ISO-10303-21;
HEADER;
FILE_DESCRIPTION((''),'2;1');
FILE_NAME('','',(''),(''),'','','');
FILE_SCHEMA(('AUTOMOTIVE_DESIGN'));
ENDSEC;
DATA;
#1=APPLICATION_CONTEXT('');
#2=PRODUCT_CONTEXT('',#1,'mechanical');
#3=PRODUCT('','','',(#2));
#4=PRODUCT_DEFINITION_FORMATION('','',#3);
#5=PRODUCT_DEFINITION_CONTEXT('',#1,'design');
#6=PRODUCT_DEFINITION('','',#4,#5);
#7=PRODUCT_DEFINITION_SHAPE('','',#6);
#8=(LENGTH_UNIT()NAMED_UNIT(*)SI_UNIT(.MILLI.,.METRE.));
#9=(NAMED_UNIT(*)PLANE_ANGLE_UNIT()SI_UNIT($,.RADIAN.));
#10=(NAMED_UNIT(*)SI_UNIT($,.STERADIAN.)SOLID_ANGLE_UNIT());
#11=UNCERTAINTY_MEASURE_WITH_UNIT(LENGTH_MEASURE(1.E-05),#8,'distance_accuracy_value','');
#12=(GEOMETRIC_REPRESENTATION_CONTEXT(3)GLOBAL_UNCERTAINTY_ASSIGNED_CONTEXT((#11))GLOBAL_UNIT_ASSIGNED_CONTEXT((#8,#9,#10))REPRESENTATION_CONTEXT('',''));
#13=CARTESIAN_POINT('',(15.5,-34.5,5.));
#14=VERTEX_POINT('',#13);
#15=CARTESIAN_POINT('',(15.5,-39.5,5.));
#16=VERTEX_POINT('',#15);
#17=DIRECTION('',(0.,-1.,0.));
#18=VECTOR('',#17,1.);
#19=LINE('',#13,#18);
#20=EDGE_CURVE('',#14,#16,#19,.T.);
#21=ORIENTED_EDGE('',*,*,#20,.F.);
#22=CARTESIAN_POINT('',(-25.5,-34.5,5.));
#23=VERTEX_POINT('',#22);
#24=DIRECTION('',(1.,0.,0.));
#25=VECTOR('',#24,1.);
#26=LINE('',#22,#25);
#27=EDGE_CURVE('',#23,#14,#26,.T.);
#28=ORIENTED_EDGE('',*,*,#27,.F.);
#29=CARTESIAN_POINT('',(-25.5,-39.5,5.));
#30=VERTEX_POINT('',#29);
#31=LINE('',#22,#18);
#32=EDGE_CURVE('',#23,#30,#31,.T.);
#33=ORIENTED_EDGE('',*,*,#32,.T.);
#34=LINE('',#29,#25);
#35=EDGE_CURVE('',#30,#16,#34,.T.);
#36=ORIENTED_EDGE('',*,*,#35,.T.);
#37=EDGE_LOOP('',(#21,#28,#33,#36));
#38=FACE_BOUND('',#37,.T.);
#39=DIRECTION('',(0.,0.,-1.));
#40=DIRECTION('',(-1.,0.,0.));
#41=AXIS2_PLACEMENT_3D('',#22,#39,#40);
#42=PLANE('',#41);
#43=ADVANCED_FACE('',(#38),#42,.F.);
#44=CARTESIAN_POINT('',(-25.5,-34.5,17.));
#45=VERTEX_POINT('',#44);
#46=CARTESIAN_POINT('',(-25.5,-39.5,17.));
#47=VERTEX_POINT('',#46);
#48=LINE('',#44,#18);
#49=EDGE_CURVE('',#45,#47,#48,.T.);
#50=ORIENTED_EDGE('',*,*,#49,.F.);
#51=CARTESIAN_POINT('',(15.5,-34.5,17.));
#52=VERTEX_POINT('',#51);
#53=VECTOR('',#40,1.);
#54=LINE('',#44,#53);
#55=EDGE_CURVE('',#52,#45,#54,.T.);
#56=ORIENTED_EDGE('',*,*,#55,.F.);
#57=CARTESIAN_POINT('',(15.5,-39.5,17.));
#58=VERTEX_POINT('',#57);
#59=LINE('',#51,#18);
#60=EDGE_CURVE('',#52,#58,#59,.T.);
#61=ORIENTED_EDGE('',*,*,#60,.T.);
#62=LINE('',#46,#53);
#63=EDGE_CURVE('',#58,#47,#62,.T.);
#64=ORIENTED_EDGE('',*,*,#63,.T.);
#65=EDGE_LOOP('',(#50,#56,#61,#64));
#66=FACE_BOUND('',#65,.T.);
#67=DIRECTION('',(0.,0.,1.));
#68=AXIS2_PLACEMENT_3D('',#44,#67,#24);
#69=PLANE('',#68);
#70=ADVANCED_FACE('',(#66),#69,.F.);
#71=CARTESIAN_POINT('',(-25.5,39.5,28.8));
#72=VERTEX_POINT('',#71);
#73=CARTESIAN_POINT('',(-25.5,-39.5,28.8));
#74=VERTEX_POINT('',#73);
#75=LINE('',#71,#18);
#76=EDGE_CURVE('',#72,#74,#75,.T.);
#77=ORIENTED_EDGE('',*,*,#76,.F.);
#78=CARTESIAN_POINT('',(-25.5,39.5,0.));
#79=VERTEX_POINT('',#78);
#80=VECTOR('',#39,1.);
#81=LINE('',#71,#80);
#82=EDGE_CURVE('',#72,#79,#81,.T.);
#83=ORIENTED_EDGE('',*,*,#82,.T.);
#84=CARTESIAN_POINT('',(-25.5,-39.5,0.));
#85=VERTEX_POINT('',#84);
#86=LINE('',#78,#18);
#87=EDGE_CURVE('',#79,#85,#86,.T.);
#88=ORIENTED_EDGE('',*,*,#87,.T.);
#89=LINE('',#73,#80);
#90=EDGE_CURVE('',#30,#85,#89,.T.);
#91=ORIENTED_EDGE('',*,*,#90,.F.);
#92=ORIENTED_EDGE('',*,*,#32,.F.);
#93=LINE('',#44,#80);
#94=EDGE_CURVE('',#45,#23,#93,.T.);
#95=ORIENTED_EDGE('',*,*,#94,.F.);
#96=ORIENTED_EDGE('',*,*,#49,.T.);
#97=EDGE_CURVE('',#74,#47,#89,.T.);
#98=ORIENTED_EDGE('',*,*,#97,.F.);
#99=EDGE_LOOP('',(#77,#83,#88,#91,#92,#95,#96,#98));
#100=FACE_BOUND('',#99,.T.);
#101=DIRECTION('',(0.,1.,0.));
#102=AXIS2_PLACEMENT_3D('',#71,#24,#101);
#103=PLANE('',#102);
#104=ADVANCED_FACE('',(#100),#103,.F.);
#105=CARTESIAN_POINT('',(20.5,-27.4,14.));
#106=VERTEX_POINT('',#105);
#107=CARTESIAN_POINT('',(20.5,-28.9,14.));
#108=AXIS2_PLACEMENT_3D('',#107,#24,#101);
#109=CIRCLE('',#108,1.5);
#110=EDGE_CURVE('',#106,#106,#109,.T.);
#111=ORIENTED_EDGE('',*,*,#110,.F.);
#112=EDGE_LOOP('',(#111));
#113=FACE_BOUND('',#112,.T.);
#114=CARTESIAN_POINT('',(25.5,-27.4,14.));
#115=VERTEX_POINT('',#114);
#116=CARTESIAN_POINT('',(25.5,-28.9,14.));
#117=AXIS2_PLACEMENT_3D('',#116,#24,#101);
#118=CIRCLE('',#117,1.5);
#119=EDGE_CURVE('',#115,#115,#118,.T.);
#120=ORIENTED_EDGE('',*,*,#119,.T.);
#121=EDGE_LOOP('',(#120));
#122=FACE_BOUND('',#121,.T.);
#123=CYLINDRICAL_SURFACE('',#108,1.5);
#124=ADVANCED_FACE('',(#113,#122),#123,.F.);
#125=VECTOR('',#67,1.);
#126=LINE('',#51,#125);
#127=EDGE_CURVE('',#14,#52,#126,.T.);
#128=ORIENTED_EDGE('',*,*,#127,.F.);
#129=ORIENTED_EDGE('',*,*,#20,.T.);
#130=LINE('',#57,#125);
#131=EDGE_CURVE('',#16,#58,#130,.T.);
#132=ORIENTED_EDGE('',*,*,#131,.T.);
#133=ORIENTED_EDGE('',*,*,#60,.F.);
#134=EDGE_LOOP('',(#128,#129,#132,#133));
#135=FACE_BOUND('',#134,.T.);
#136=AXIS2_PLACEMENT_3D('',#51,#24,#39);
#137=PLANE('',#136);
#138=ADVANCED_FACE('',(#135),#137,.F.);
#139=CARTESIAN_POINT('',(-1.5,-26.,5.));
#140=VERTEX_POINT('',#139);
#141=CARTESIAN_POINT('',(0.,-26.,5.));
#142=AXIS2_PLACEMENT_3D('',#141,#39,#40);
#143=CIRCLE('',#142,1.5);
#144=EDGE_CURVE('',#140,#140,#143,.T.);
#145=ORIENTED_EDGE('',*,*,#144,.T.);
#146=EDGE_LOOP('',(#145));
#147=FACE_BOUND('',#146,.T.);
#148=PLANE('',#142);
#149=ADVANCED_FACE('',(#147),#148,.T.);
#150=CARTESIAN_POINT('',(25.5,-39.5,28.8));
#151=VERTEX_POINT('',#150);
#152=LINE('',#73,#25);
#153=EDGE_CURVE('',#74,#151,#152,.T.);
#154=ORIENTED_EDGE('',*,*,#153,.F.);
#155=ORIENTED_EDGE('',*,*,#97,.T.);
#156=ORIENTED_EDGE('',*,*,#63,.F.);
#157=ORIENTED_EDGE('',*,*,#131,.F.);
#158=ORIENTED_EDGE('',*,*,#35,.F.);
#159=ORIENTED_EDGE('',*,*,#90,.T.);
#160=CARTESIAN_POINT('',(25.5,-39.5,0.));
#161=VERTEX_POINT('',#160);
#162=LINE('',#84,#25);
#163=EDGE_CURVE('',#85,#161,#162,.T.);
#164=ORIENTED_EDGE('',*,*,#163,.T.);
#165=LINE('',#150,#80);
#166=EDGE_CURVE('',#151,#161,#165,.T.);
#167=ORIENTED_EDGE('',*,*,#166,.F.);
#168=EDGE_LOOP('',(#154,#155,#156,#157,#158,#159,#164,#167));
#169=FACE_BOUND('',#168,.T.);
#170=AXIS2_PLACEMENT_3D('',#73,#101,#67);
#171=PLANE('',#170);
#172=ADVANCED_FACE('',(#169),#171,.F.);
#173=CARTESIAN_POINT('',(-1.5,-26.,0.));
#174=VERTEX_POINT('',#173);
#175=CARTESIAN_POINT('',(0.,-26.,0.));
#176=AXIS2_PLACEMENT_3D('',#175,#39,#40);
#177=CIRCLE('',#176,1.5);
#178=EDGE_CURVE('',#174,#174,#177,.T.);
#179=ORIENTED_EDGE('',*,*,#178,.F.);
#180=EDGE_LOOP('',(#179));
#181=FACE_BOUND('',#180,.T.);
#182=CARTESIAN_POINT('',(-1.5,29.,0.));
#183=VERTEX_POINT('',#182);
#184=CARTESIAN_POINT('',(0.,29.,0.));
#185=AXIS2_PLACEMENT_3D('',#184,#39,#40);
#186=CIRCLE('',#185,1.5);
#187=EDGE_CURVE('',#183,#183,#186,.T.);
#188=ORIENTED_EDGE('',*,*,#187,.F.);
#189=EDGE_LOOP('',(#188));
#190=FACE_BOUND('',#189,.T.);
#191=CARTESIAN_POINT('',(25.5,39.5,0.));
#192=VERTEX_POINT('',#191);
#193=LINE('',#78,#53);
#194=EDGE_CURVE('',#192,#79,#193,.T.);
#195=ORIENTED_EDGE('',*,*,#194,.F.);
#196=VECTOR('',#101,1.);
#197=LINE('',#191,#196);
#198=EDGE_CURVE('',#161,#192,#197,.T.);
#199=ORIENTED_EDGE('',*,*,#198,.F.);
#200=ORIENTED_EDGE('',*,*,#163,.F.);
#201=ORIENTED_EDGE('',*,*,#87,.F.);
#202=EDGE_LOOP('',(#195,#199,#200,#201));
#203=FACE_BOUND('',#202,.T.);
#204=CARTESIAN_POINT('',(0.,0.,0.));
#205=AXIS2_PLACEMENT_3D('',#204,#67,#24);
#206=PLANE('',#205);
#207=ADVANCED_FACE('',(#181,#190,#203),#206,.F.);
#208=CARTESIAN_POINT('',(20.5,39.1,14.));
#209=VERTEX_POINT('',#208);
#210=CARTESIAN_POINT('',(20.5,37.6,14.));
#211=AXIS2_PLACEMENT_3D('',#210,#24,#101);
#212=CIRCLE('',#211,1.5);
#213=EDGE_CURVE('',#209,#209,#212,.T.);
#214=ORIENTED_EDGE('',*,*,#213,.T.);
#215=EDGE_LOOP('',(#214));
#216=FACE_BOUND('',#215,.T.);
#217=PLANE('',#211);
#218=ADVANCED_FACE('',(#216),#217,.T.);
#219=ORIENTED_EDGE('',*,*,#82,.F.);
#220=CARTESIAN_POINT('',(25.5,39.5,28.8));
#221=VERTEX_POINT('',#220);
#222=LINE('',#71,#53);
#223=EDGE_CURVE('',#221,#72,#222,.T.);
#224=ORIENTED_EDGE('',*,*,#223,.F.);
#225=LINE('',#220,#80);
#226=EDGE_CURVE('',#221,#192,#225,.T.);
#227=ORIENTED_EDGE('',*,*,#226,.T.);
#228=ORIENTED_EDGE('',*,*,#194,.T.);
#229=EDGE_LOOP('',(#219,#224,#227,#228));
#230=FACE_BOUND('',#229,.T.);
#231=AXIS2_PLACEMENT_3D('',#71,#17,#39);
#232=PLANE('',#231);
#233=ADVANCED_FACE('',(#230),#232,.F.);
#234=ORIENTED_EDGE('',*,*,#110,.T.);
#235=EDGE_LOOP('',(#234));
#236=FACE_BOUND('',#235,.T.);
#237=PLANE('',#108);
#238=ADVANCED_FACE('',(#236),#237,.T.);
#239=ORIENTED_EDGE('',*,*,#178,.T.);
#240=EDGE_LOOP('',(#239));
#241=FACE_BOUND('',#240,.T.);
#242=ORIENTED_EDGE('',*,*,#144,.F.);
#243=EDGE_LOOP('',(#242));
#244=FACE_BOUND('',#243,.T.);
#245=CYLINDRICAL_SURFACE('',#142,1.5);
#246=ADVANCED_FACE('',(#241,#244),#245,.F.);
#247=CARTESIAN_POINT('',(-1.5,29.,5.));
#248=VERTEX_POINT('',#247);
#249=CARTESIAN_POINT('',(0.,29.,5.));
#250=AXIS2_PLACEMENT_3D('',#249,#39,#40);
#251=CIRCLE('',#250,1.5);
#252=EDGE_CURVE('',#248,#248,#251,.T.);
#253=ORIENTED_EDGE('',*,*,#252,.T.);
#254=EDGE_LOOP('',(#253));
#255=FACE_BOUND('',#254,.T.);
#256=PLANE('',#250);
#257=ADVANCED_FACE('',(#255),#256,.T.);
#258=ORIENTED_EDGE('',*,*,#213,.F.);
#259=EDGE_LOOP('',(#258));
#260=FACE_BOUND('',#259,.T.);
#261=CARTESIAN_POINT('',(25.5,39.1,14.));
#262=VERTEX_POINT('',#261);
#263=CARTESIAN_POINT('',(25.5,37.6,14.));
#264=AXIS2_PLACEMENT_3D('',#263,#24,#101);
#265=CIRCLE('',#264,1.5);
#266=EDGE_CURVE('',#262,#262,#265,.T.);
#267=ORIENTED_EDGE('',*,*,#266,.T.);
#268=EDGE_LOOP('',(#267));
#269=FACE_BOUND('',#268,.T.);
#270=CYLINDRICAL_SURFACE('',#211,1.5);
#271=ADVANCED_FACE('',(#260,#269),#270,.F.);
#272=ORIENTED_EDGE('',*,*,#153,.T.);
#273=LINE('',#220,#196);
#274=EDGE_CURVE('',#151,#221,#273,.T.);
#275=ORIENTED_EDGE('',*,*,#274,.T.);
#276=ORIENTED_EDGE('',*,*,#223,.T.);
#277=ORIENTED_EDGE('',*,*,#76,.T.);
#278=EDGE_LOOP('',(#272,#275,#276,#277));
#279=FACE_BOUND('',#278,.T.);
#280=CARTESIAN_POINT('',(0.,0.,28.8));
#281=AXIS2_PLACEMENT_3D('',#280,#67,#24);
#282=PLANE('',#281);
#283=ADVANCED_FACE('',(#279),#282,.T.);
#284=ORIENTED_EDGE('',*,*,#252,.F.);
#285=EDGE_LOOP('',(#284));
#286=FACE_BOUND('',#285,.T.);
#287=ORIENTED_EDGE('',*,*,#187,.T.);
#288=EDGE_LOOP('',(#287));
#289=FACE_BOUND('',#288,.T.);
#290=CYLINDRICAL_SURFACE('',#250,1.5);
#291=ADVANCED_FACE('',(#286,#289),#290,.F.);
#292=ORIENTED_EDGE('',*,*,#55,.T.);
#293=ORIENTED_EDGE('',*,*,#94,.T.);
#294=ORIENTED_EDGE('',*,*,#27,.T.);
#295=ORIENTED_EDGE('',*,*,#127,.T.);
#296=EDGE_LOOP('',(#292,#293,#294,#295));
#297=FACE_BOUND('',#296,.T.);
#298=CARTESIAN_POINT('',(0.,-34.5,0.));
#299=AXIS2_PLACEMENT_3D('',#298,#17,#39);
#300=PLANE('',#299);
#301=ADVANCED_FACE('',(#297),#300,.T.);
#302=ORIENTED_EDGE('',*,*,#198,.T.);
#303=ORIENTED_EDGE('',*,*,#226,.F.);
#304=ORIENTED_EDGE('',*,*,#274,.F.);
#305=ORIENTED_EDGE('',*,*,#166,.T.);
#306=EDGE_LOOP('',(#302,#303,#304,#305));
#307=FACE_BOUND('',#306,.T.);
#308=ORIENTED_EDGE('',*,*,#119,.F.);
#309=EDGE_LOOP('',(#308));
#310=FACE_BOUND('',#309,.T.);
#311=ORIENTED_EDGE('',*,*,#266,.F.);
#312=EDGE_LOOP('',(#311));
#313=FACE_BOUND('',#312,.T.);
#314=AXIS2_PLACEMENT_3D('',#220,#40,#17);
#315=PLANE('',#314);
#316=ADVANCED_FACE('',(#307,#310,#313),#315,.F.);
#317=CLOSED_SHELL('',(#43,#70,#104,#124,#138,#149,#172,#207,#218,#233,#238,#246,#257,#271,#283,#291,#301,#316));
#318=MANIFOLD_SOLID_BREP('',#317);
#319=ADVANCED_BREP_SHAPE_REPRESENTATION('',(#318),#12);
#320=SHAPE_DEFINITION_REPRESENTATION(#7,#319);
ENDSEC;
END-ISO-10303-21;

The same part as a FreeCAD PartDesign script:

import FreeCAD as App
import Part
import Sketcher


def add_polygon(sketch, points):
    """Adds a closed chain of lines whose ends are joined by coincident constraints."""
    first, n = sketch.GeometryCount, len(points)
    for a, b in zip(points, points[1:] + points[:1]):
        sketch.addGeometry(Part.LineSegment(App.Vector(*a, 0), App.Vector(*b, 0)), False)
    for i in range(n):
        sketch.addConstraint(Sketcher.Constraint("Coincident", first + i, 2, first + (i + 1) % n, 1))

doc = App.newDocument("Part")
body = doc.addObject("PartDesign::Body", "Body")

# Sketch on XY plane
sketch1 = body.newObject("Sketcher::SketchObject", "Sketch")
sketch1.AttachmentSupport = (doc.getObject("XY_Plane"), [""])
sketch1.MapMode = "FlatFace"
add_polygon(sketch1, [(-26, 40), (-26, -40), (26, -40), (26, 40)])  # lines 0-3
sketch1.addConstraint([
    Sketcher.Constraint("Vertical", 0),
    Sketcher.Constraint("Horizontal", 1),
    Sketcher.Constraint("Vertical", 2),
    Sketcher.Constraint("Horizontal", 3),
    Sketcher.Constraint("Symmetric", 0, 2, 2, 2, -1, 1),
    Sketcher.Constraint("DistanceX", 1, 1, 1, 2, 51.0),
    Sketcher.Constraint("DistanceY", 0, 2, 0, 1, 79.0),
])
pad1 = body.newObject("PartDesign::Pad", "Pad")
pad1.Profile = sketch1
pad1.Length = 28.8

# Sketch on XY plane
sketch2 = body.newObject("Sketcher::SketchObject", "Sketch001")
sketch2.AttachmentSupport = (doc.getObject("XY_Plane"), [""])
sketch2.MapMode = "FlatFace"
sketch2.addGeometry([
    Part.Circle(App.Vector(0, 29, 0), App.Vector(0, 0, 1), 1.5),
    Part.Circle(App.Vector(0, -26, 0), App.Vector(0, 0, 1), 1.5),
], False)
sketch2.addConstraint([
    Sketcher.Constraint("Equal", 0, 1),
    Sketcher.Constraint("PointOnObject", 0, 3, -2),
    Sketcher.Constraint("PointOnObject", 1, 3, -2),
    Sketcher.Constraint("Diameter", 0, 3.0),
    Sketcher.Constraint("DistanceY", -1, 1, 0, 3, 29.0),
    Sketcher.Constraint("DistanceY", 1, 3, -1, 1, 26.0),
])
pocket1 = body.newObject("PartDesign::Pocket", "Pocket")
pocket1.Profile = sketch2
pocket1.Length = 5
pocket1.Reversed = True

# Sketch on YZ plane
sketch3 = body.newObject("Sketcher::SketchObject", "Sketch002")
sketch3.AttachmentSupport = (doc.getObject("YZ_Plane"), [""])
sketch3.MapMode = "FlatFace"
sketch3.AttachmentOffset = App.Placement(App.Vector(0, 0, 25.5), App.Rotation())
sketch3.addGeometry([
    Part.Circle(App.Vector(37.6, 14, 0), App.Vector(0, 0, 1), 1.5),
    Part.Circle(App.Vector(-28.9, 14, 0), App.Vector(0, 0, 1), 1.5),
], False)
sketch3.addConstraint([
    Sketcher.Constraint("Equal", 0, 1),
    Sketcher.Constraint("Horizontal", 0, 3, 1, 3),
    Sketcher.Constraint("Diameter", 0, 3.0),
    Sketcher.Constraint("DistanceY", -1, 1, 0, 3, 14.0),
    Sketcher.Constraint("DistanceX", -1, 1, 0, 3, 37.6),
    Sketcher.Constraint("DistanceX", 1, 3, -1, 1, 28.9),
])
pocket2 = body.newObject("PartDesign::Pocket", "Pocket001")
pocket2.Profile = sketch3
pocket2.Length = 5

# Sketch on XZ plane
sketch4 = body.newObject("Sketcher::SketchObject", "Sketch003")
sketch4.AttachmentSupport = (doc.getObject("XZ_Plane"), [""])
sketch4.MapMode = "FlatFace"
sketch4.AttachmentOffset = App.Placement(App.Vector(0, 0, 39.5), App.Rotation())
add_polygon(sketch4, [(-26, 17), (-26, 5), (16, 5), (16, 17)])  # lines 0-3
sketch4.addConstraint([
    Sketcher.Constraint("Vertical", 0),
    Sketcher.Constraint("Horizontal", 1),
    Sketcher.Constraint("Vertical", 2),
    Sketcher.Constraint("Horizontal", 3),
    Sketcher.Constraint("DistanceX", 1, 1, 1, 2, 41.0),
    Sketcher.Constraint("DistanceY", 0, 2, 0, 1, 12.0),
    Sketcher.Constraint("DistanceY", -1, 1, 0, 2, 5.0),
    Sketcher.Constraint("DistanceX", 0, 2, -1, 1, 25.5),
])
pocket3 = body.newObject("PartDesign::Pocket", "Pocket002")
pocket3.Profile = sketch4
pocket3.Length = 5

doc.recompute()
